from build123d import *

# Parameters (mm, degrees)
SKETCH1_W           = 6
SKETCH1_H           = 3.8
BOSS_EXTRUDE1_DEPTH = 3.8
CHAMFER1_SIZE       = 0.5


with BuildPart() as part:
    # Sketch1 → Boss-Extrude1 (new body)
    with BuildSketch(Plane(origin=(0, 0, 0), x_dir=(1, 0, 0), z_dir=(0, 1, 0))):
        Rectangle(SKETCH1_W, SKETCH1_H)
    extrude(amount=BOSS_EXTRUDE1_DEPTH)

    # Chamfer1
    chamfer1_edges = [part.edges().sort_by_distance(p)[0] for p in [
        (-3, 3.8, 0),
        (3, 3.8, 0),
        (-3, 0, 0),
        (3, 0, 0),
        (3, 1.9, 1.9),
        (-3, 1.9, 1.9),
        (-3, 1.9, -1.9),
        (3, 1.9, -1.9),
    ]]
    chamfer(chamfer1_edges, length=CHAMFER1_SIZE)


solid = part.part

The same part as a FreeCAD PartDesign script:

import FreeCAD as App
import Part
import Sketcher


def edges_at(feature, points):
    """Names of the edges that pass closest to the given points."""
    edges = feature.Shape.Edges
    near = lambda p: min(range(len(edges)), key=lambda i: edges[i].distToShape(Part.Vertex(*p))[0])
    return sorted({f"Edge{near(p) + 1}" for p in points})


def add_polygon(sketch, points):
    """Adds a closed chain of lines whose ends are joined by coincident constraints."""
    first, n = sketch.GeometryCount, len(points)
    for a, b in zip(points, points[1:] + points[:1]):
        sketch.addGeometry(Part.LineSegment(App.Vector(*a, 0), App.Vector(*b, 0)), False)
    for i in range(n):
        sketch.addConstraint(Sketcher.Constraint("Coincident", first + i, 2, first + (i + 1) % n, 1))

doc = App.newDocument("Part")
body = doc.addObject("PartDesign::Body", "Body")

sketch1 = body.newObject("Sketcher::SketchObject", "Sketch")
sketch1.AttachmentSupport = (doc.getObject("XZ_Plane"), [""])
sketch1.MapMode = "FlatFace"
add_polygon(sketch1, [(-3, -1.9), (-3, 1.9), (3, 1.9), (3, -1.9)])
sketch1.addConstraint([
    Sketcher.Constraint("Vertical", 0),
    Sketcher.Constraint("Horizontal", 1),
    Sketcher.Constraint("Vertical", 2),
    Sketcher.Constraint("Horizontal", 3),
    Sketcher.Constraint("Symmetric", 0, 2, 2, 2, -1, 1),
    Sketcher.Constraint("DistanceX", 1, 1, 1, 2, 6.0),
    Sketcher.Constraint("DistanceY", 0, 1, 0, 2, 3.8),
])
pad1 = body.newObject("PartDesign::Pad", "Pad")
pad1.Profile = sketch1
pad1.Length = 3.8
pad1.Reversed = True
doc.recompute()

chamfer = body.newObject("PartDesign::Chamfer", "Chamfer")
chamfer.Base = (pad1, edges_at(pad1, [
    (-3, 3.8, 0),
    (3, 3.8, 0),
    (-3, 0, 0),
    (3, 0, 0),
    (3, 1.9, 1.9),
    (-3, 1.9, 1.9),
    (-3, 1.9, -1.9),
    (3, 1.9, -1.9),
]))
chamfer.Size = 0.5

doc.recompute()
